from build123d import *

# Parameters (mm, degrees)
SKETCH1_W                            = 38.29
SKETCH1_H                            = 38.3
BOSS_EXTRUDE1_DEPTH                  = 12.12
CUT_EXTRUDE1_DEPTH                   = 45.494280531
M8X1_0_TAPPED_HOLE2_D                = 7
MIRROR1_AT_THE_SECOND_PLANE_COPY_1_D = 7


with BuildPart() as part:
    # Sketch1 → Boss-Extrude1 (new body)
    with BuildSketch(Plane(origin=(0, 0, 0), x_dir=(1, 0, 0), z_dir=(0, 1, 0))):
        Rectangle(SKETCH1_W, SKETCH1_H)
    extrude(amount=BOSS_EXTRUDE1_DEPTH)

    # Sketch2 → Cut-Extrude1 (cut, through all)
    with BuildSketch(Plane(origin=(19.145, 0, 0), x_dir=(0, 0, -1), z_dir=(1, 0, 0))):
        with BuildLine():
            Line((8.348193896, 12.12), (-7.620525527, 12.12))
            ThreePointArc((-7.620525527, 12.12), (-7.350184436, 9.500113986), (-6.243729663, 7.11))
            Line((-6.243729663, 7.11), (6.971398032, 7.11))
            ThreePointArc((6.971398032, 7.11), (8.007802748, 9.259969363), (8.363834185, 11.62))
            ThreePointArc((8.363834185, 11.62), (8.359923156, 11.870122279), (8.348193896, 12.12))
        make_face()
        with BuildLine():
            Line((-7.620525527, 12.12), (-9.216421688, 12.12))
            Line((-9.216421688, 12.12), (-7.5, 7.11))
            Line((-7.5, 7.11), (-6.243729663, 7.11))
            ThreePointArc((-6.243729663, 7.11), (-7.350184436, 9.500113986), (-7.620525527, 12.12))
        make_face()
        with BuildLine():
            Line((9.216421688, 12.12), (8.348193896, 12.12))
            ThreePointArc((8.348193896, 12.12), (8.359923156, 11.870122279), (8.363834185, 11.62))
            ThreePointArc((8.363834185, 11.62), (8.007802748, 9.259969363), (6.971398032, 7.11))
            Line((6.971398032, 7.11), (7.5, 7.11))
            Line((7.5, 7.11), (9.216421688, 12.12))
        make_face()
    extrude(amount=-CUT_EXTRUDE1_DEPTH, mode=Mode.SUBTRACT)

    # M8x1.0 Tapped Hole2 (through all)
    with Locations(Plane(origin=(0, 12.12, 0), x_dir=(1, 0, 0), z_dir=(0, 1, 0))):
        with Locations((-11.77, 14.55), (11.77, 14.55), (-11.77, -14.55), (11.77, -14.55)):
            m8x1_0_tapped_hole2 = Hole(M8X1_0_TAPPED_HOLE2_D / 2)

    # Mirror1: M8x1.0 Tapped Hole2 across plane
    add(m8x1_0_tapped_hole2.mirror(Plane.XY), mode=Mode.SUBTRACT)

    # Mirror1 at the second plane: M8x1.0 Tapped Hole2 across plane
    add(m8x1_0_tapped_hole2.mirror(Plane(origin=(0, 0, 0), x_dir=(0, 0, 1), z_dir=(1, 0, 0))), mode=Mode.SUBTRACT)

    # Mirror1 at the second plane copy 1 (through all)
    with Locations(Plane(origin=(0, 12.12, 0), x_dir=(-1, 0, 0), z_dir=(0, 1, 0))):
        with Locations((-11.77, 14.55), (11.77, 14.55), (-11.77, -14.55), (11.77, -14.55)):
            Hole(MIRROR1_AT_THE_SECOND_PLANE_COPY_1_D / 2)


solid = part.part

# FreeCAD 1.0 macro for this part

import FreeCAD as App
import Part
import Sketcher
from FreeCAD import Vector


def add_polygon(sketch, points):
    """Adds a closed chain of lines whose ends are joined by coincident constraints."""
    first, n = sketch.GeometryCount, len(points)
    for a, b in zip(points, points[1:] + points[:1]):
        sketch.addGeometry(Part.LineSegment(App.Vector(*a, 0), App.Vector(*b, 0)), False)
    for i in range(n):
        sketch.addConstraint(Sketcher.Constraint("Coincident", first + i, 2, first + (i + 1) % n, 1))

doc = App.newDocument("Part")
body = doc.addObject("PartDesign::Body", "Body")

sketch1 = doc.addObject("Sketcher::SketchObject", "Sketch")
body.addObject(sketch1)
sketch1.AttachmentSupport = (doc.XZ_Plane, [""])
sketch1.MapMode = "FlatFace"
add_polygon(sketch1, [(-19, -19), (-19, 19), (19, 19), (19, -19)])
sketch1.addConstraint([
    Sketcher.Constraint("Vertical", 0),
    Sketcher.Constraint("Horizontal", 1),
    Sketcher.Constraint("Vertical", 2),
    Sketcher.Constraint("Horizontal", 3),
    Sketcher.Constraint("Symmetric", 0, 2, 2, 2, -1, 1),
    Sketcher.Constraint("DistanceY", 0, 1, 0, 2, 38.3),
    Sketcher.Constraint("DistanceX", 1, 1, 1, 2, 38.29),
])
pad1 = doc.addObject("PartDesign::Pad", "Pad")
body.addObject(pad1)
pad1.Profile = sketch1
pad1.Length = 12.12
pad1.Reversed = True

sketch2 = doc.addObject("Sketcher::SketchObject", "Sketch001")
body.addObject(sketch2)
sketch2.AttachmentSupport = (doc.YZ_Plane, [""])
sketch2.MapMode = "FlatFace"
sketch2.AttachmentOffset = App.Placement(Vector(0, 0, 19.145), App.Rotation())
add_polygon(sketch2, [(12, 9), (7, 8), (7, -8), (12, -9)])
sketch2.addConstraint([
    Sketcher.Constraint("Vertical", 1),
    Sketcher.Constraint("Vertical", 3),
    Sketcher.Constraint("Equal", 0, 2),
    Sketcher.Constraint("DistanceY", 1, 2, 1, 1, 15.0),
    Sketcher.Constraint("DistanceY", -1, 1, 0, 2, 7.5),
    Sketcher.Constraint("DistanceX", -1, 1, 0, 2, 7.11),
    Sketcher.Constraint("DistanceX", -1, 1, 2, 2, 12.12),
    Sketcher.Constraint("DistanceY", 3, 1, 3, 2, 18.432843),
])
pocket1 = doc.addObject("PartDesign::Pocket", "Pocket")
body.addObject(pocket1)
pocket1.Profile = sketch2
pocket1.Type = "ThroughAll"

sketch3 = doc.addObject("Sketcher::SketchObject", "Sketch002")
body.addObject(sketch3)
sketch3.AttachmentSupport = (doc.XZ_Plane, [""])
sketch3.MapMode = "FlatFace"
sketch3.AttachmentOffset = App.Placement(Vector(0, 0, -12.12), App.Rotation())
sketch3.addGeometry([
    Part.Circle(Vector(-11.8, -14.6, 0), Vector(0, 0, 1), 3.5),
    Part.Circle(Vector(11.8, -14.6, 0), Vector(0, 0, 1), 3.5),
    Part.Circle(Vector(-11.8, 14.6, 0), Vector(0, 0, 1), 3.5),
    Part.Circle(Vector(11.8, 14.6, 0), Vector(0, 0, 1), 3.5),
], False)
sketch3.addConstraint([
    Sketcher.Constraint("Equal", 0, 1),
    Sketcher.Constraint("Equal", 1, 2),
    Sketcher.Constraint("Equal", 2, 3),
    Sketcher.Constraint("Symmetric", 1, 3, 2, 3, -1, 1),
    Sketcher.Constraint("Symmetric", 0, 3, 3, 3, -1, 1),
    Sketcher.Constraint("Symmetric", 0, 3, 1, 3, -2),
    Sketcher.Constraint("Diameter", 0, 7.0),
    Sketcher.Constraint("DistanceY", 0, 3, 2, 3, 29.1),
    Sketcher.Constraint("DistanceX", 0, 3, -1, 1, 11.77),
])
doc.recompute()
hole = doc.addObject("PartDesign::Hole", "Hole")
body.addObject(hole)
hole.Profile = sketch3
hole.ThreadType = "None"
hole.Diameter = 7
hole.DepthType = "ThroughAll"
hole.Reversed = True
doc.recompute()

mirrored = doc.addObject("PartDesign::Mirrored", "Mirrored")
body.addObject(mirrored)
mirrored.Originals = [hole]
mirrored.MirrorPlane = (doc.XY_Plane, [""])
body.Tip = mirrored
doc.recompute()

mirrored2 = doc.addObject("PartDesign::Mirrored", "Mirrored001")
body.addObject(mirrored2)
mirrored2.Originals = [hole]
mirrored2.MirrorPlane = (doc.YZ_Plane, [""])
body.Tip = mirrored2

sketch4 = doc.addObject("Sketcher::SketchObject", "Sketch003")
body.addObject(sketch4)
sketch4.AttachmentSupport = (doc.XZ_Plane, [""])
sketch4.MapMode = "FlatFace"
sketch4.AttachmentOffset = App.Placement(Vector(0, 0, -12.12), App.Rotation())
sketch4.addGeometry([
    Part.Circle(Vector(11.8, 14.6, 0), Vector(0, 0, 1), 3.5),
    Part.Circle(Vector(-11.8, 14.6, 0), Vector(0, 0, 1), 3.5),
    Part.Circle(Vector(11.8, -14.6, 0), Vector(0, 0, 1), 3.5),
    Part.Circle(Vector(-11.8, -14.6, 0), Vector(0, 0, 1), 3.5),
], False)
sketch4.addConstraint([
    Sketcher.Constraint("Equal", 0, 1),
    Sketcher.Constraint("Equal", 1, 2),
    Sketcher.Constraint("Equal", 2, 3),
    Sketcher.Constraint("Symmetric", 1, 3, 2, 3, -1, 1),
    Sketcher.Constraint("Symmetric", 0, 3, 3, 3, -1, 1),
    Sketcher.Constraint("Symmetric", 0, 3, 1, 3, -2),
    Sketcher.Constraint("Diameter", 0, 7.0),
    Sketcher.Constraint("DistanceY", 2, 3, 0, 3, 29.1),
    Sketcher.Constraint("DistanceX", -1, 1, 0, 3, 11.77),
])
doc.recompute()
hole2 = doc.addObject("PartDesign::Hole", "Hole001")
body.addObject(hole2)
hole2.Profile = sketch4
hole2.ThreadType = "None"
hole2.Diameter = 7
hole2.DepthType = "ThroughAll"
hole2.Reversed = True

doc.recompute()
